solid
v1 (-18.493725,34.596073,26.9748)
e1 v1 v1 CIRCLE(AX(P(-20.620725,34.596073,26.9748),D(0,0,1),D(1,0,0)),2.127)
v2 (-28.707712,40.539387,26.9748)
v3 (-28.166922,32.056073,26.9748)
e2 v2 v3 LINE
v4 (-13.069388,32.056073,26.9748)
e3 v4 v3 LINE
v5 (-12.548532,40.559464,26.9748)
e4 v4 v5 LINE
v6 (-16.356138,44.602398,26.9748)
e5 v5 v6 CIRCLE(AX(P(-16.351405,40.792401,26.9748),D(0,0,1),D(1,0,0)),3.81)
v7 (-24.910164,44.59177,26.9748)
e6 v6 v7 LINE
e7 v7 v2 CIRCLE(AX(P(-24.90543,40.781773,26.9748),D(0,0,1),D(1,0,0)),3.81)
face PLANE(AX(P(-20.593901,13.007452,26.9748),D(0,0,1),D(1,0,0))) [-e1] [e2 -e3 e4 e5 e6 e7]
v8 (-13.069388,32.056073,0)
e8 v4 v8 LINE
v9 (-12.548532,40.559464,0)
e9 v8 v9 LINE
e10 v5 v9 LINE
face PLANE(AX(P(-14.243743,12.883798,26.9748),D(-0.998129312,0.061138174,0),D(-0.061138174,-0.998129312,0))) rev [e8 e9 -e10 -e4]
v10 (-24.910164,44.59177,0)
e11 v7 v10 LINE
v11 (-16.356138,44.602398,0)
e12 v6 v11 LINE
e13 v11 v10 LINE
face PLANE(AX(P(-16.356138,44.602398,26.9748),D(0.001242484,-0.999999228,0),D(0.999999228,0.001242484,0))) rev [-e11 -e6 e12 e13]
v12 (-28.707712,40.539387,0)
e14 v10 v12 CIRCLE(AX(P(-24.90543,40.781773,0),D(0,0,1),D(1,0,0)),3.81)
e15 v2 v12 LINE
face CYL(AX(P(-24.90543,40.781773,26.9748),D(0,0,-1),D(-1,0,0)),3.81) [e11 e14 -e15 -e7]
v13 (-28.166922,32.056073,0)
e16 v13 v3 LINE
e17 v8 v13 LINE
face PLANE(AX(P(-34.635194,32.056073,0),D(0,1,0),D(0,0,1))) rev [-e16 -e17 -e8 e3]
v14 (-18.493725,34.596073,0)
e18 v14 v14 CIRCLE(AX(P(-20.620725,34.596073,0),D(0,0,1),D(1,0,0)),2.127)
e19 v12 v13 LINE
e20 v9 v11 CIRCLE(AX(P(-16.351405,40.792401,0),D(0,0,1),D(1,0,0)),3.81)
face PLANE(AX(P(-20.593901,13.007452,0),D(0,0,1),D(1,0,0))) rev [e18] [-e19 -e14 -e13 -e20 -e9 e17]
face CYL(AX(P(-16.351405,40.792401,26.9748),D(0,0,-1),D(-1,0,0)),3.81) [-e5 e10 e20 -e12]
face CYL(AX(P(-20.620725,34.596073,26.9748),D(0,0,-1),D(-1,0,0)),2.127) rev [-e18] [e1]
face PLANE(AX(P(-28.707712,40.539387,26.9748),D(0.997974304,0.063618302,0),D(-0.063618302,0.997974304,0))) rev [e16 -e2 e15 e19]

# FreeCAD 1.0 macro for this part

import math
import FreeCAD as App
import Part
import Sketcher
Q = App.Units.Quantity


def add_polygon(sketch, points):
    """Adds a closed chain of lines whose ends are joined by coincident constraints."""
    first, n = sketch.GeometryCount, len(points)
    for a, b in zip(points, points[1:] + points[:1]):
        sketch.addGeometry(Part.LineSegment(App.Vector(*a, 0), App.Vector(*b, 0)), False)
    for i in range(n):
        sketch.addConstraint(Sketcher.Constraint("Coincident", first + i, 2, first + (i + 1) % n, 1))

doc = App.newDocument("Part")
body = doc.addObject("PartDesign::Body", "Body")

# Sketch on XY plane
sketch1 = body.newObject("Sketcher::SketchObject", "Sketch")
sketch1.AttachmentSupport = (doc.getObject("XY_Plane"), [""])
sketch1.MapMode = "FlatFace"
sketch1.addGeometry(Part.LineSegment(App.Vector(-14.2, 12.9, 0), App.Vector(-12.5, 40.6, 0)), False)
sketch1.addGeometry(Part.ArcOfCircle(Part.Circle(App.Vector(-16.4, 40.8, 0), App.Vector(0, 0, 1), 3.8), math.radians(-4), math.radians(90)), False)
sketch1.addGeometry(Part.LineSegment(App.Vector(-16.4, 44.6, 0), App.Vector(-24.9, 44.6, 0)), False)
sketch1.addGeometry(Part.ArcOfCircle(Part.Circle(App.Vector(-24.9, 40.8, 0), App.Vector(0, 0, 1), 3.8), math.radians(90), math.radians(184)), False)
sketch1.addGeometry(Part.LineSegment(App.Vector(-28.7, 40.5, 0), App.Vector(-26.9, 12.9, 0)), False)
sketch1.addGeometry(Part.ArcOfCircle(Part.Circle(App.Vector(-20.6, 13, 0), App.Vector(0, 0, 1), 6.4), math.radians(-179), math.radians(-1)), False)
sketch1.addGeometry(Part.Circle(App.Vector(-20.6, 11.7, 0), App.Vector(0, 0, 1), 2.1), False)
sketch1.addGeometry(Part.Circle(App.Vector(-20.6, 34.6, 0), App.Vector(0, 0, 1), 2.1), False)
sketch1.addConstraint(Sketcher.Constraint("Tangent", 0, 2, 1, 1))
sketch1.addConstraint(Sketcher.Constraint("Tangent", 1, 2, 2, 1))
sketch1.addConstraint(Sketcher.Constraint("Tangent", 2, 2, 3, 1))
sketch1.addConstraint(Sketcher.Constraint("Tangent", 3, 2, 4, 1))
sketch1.addConstraint(Sketcher.Constraint("Coincident", 4, 2, 5, 1))
sketch1.addConstraint(Sketcher.Constraint("Coincident", 5, 2, 0, 1))
sketch1.addConstraint(Sketcher.Constraint("Equal", 1, 3))
sketch1.addConstraint(Sketcher.Constraint("Equal", 6, 7))
sketch1.addConstraint(Sketcher.Constraint("Equal", 0, 4))
sketch1.addConstraint(Sketcher.Constraint("Radius", 1, Q("0.15 in")))
sketch1.addConstraint(Sketcher.Constraint("Diameter", 6, 4.254))
sketch1.addConstraint(Sketcher.Constraint("DistanceY", -1, 1, 1, 3, Q("1.606 in")))
sketch1.addConstraint(Sketcher.Constraint("Radius", 5, 6.351362))
sketch1.addConstraint(Sketcher.Constraint("DistanceX", 5, 3, -1, 1, 20.593901))
sketch1.addConstraint(Sketcher.Constraint("DistanceY", -1, 1, 5, 2, 12.883798))
sketch1.addConstraint(Sketcher.Constraint("DistanceY", 7, 3, 3, 3, 6.185699))
sketch1.addConstraint(Sketcher.Constraint("Distance", 2, 8.554032))
sketch1.addConstraint(Sketcher.Constraint("DistanceX", 3, 3, -1, 1, 24.90543))
sketch1.addConstraint(Sketcher.Constraint("DistanceX", 6, 3, -1, 1, 20.592322))
sketch1.addConstraint(Sketcher.Constraint("DistanceY", -1, 1, 6, 3, 11.736091))
sketch1.addConstraint(Sketcher.Constraint("DistanceX", 1, 2, -1, 1, 16.356138))
sketch1.addConstraint(Sketcher.Constraint("DistanceY", 5, 3, 1, 3, 27.784948))
sketch1.addConstraint(Sketcher.Constraint("DistanceX", 7, 3, 1, 3, 4.26932))
pad1 = body.newObject("PartDesign::Pad", "Pad")
pad1.Profile = sketch1
pad1.Length = Q("1.062 in")

# Sketch on XY plane
sketch2 = body.newObject("Sketcher::SketchObject", "Sketch001")
sketch2.AttachmentSupport = (doc.getObject("XY_Plane"), [""])
sketch2.MapMode = "FlatFace"
sketch2.AttachmentOffset = App.Placement(App.Vector(0, 0, 1.062 * 25.4), App.Rotation())
add_polygon(sketch2, [(-35, 32), (-35, 1), (-8, 1), (-8, 32)])  # lines 0-3
sketch2.addConstraint(Sketcher.Constraint("Vertical", 0))
sketch2.addConstraint(Sketcher.Constraint("Horizontal", 1))
sketch2.addConstraint(Sketcher.Constraint("Vertical", 2))
sketch2.addConstraint(Sketcher.Constraint("Horizontal", 3))
sketch2.addConstraint(Sketcher.Constraint("DistanceX", 1, 2, -1, 1, 8.1994))
sketch2.addConstraint(Sketcher.Constraint("DistanceX", 1, 1, 1, 2, 26.435794))
sketch2.addConstraint(Sketcher.Constraint("DistanceY", 0, 2, 0, 1, 30.822497))
sketch2.addConstraint(Sketcher.Constraint("DistanceY", -1, 1, 0, 2, 1.233577))
pocket1 = body.newObject("PartDesign::Pocket", "Pocket")
pocket1.Profile = sketch2
pocket1.Length = Q("1.062 in")

doc.recompute()
